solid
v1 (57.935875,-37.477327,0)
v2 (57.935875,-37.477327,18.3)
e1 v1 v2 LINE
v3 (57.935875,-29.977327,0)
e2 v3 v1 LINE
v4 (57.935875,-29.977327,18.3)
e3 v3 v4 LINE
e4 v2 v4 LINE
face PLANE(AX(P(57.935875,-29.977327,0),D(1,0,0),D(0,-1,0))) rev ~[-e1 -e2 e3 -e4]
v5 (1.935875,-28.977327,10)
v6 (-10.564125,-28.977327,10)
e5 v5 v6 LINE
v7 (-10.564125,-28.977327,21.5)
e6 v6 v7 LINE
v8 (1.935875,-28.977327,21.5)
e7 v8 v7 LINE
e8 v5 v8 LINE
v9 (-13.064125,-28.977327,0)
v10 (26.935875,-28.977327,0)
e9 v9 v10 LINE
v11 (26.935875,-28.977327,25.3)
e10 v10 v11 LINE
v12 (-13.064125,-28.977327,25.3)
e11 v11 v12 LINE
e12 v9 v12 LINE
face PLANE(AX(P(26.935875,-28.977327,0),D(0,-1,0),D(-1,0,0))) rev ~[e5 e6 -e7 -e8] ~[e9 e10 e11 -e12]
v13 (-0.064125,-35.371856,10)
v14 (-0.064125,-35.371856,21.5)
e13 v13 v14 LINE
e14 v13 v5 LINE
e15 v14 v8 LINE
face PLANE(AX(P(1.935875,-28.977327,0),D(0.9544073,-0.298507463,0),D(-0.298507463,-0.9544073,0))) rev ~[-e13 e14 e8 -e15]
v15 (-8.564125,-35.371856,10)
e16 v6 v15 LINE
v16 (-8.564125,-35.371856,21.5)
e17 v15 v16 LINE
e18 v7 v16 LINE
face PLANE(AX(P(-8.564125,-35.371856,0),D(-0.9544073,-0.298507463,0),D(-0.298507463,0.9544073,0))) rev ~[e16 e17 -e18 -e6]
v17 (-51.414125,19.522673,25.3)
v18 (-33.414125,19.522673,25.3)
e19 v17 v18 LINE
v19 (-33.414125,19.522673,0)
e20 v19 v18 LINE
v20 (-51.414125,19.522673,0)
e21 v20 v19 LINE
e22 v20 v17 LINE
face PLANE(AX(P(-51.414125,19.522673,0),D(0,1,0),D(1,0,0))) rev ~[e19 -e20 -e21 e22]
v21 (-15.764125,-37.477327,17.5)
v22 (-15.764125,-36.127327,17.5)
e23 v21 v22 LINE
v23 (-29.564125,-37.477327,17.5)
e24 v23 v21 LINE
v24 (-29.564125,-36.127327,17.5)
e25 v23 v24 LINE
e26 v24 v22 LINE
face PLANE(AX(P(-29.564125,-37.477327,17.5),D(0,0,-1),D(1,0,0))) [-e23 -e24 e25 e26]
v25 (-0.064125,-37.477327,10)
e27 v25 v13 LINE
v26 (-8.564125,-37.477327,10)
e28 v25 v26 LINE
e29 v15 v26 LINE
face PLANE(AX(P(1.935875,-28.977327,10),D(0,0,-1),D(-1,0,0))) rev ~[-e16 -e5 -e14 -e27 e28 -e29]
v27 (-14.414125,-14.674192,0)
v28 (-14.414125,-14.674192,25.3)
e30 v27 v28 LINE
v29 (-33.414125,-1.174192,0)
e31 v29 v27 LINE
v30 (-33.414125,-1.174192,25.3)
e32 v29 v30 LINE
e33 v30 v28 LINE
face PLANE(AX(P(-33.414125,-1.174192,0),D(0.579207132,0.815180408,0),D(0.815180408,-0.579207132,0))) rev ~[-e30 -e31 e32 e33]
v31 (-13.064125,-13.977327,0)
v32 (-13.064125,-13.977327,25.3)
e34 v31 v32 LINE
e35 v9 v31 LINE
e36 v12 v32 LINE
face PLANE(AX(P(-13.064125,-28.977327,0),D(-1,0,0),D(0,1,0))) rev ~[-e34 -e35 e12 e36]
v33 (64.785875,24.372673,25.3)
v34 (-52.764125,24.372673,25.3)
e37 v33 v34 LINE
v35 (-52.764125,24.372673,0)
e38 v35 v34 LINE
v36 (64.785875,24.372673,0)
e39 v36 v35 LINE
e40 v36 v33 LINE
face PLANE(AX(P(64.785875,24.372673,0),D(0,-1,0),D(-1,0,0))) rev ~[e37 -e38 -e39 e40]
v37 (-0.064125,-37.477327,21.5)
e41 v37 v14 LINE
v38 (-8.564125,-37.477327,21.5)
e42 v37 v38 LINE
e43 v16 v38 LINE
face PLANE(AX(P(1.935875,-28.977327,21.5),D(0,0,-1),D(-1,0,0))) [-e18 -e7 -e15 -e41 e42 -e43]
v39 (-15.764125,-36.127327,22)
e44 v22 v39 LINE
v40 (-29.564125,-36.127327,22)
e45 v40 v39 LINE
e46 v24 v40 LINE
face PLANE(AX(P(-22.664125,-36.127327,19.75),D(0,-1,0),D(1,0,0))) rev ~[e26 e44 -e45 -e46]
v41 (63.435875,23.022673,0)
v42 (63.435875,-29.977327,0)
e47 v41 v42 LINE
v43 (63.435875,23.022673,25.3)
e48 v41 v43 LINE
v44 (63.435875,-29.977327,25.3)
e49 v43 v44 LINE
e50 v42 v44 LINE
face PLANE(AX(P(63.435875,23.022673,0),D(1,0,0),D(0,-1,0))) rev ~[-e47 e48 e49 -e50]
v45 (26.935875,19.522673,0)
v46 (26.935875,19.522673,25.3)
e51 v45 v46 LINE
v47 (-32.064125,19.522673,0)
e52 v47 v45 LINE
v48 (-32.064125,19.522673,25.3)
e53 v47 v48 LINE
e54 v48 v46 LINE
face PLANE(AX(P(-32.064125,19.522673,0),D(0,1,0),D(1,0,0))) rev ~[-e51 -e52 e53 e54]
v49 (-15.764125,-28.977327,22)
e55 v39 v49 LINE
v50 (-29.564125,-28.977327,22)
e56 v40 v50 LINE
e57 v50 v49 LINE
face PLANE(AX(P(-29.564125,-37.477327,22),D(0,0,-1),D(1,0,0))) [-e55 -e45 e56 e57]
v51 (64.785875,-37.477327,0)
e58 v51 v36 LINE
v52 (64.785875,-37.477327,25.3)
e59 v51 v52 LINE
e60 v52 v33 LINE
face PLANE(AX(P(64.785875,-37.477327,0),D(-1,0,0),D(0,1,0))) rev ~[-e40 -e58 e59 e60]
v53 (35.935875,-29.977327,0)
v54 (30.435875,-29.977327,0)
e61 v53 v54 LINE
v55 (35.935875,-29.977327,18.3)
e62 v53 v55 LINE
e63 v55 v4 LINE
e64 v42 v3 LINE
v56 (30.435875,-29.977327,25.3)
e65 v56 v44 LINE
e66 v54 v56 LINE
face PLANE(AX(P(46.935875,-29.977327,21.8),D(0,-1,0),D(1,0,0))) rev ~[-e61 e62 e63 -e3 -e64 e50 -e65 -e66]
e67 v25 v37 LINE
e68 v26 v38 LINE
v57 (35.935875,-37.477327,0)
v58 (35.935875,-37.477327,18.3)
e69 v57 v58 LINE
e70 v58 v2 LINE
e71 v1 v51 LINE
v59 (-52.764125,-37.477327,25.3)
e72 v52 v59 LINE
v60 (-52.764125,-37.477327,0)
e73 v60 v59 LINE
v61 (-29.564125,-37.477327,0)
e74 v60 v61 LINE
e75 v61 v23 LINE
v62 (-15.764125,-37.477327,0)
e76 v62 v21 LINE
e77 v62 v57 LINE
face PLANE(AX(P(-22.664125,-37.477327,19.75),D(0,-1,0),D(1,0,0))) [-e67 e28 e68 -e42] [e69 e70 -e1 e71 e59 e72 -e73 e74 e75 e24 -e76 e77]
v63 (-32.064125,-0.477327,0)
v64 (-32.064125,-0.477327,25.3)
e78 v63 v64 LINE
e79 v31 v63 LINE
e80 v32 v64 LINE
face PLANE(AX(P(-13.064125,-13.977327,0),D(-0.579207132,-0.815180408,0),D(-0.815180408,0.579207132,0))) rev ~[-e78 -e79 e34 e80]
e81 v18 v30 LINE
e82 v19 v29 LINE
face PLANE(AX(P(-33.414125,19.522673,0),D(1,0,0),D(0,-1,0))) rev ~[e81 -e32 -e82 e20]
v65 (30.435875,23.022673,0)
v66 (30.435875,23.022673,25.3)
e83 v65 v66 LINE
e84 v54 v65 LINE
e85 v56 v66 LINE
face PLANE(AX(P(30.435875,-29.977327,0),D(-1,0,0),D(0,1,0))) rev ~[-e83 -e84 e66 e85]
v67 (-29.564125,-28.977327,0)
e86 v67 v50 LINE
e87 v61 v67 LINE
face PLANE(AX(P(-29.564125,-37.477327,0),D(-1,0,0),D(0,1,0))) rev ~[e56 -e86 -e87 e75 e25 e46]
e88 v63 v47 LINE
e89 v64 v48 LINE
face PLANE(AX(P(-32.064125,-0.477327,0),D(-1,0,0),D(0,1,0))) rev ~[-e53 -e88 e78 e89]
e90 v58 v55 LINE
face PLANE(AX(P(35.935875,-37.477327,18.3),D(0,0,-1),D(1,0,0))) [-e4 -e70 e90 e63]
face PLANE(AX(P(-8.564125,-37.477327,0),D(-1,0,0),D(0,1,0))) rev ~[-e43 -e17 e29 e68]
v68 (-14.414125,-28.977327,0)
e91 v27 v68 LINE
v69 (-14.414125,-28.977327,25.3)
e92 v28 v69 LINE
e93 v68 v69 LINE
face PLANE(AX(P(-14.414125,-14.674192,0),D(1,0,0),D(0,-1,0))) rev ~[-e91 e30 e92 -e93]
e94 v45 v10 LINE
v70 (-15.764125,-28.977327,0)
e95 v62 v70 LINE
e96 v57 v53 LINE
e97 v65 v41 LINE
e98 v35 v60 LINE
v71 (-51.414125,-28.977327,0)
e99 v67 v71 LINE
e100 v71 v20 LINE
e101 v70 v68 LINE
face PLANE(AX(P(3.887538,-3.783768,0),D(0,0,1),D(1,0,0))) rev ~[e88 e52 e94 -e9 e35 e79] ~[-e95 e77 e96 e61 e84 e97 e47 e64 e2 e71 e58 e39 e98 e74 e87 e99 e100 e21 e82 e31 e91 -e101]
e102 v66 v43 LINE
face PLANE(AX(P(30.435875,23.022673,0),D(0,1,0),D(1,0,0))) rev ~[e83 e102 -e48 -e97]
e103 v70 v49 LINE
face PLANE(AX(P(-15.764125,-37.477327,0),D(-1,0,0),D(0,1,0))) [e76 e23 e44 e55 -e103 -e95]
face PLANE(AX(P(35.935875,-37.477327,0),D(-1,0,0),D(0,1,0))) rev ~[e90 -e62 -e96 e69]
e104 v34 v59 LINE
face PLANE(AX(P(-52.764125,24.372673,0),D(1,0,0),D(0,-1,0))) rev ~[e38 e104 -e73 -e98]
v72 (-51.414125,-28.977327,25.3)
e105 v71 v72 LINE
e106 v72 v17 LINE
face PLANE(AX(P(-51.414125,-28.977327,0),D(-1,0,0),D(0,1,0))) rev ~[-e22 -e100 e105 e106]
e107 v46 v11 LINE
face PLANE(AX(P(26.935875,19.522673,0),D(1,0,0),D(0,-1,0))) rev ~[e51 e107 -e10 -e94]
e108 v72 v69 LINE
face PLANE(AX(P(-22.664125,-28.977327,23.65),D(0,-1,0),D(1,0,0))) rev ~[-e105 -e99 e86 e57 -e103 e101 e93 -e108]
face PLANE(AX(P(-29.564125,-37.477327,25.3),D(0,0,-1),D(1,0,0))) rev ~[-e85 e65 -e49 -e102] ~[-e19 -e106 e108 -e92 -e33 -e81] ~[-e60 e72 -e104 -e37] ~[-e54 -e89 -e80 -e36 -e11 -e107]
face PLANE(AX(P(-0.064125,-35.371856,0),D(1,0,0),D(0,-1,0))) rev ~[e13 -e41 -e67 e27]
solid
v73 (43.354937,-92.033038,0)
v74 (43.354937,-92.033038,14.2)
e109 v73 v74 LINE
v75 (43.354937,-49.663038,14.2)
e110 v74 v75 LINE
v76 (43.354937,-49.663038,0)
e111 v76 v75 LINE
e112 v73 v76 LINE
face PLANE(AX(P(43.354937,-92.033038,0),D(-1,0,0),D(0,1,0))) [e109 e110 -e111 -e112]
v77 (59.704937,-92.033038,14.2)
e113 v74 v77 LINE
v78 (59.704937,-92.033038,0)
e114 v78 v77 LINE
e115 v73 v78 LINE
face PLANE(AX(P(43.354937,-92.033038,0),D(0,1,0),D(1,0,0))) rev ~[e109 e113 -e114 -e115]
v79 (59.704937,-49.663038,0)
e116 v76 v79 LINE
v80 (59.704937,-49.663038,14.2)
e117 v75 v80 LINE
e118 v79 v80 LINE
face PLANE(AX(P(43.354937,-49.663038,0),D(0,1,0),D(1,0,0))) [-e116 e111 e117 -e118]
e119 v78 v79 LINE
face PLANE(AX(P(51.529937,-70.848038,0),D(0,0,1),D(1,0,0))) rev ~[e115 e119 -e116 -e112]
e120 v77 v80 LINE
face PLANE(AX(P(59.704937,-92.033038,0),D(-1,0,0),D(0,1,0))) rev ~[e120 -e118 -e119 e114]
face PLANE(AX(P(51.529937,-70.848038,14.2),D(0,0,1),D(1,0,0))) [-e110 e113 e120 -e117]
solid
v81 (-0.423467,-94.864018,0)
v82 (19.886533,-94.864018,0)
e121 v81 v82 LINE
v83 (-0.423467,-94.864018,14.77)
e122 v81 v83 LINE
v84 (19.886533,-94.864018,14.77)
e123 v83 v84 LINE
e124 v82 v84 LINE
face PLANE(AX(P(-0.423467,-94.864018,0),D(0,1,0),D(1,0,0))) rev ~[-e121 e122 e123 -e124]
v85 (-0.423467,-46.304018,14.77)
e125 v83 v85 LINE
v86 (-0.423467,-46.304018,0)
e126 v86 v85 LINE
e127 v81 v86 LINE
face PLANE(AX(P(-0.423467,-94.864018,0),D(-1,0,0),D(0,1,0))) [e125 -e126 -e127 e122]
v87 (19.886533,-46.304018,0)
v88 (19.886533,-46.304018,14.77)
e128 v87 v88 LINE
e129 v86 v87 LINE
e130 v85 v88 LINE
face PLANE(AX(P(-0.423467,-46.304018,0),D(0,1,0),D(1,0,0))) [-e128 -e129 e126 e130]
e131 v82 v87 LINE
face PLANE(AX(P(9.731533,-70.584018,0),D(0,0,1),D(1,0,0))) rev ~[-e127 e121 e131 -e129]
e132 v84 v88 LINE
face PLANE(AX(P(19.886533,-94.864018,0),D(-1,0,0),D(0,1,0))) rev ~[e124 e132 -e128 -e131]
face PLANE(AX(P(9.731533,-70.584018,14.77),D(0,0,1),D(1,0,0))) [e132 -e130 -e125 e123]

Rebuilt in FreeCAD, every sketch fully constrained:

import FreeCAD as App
import Part
import Sketcher
from FreeCAD import Vector
Q = App.Units.Quantity


def add_polygon(sketch, points):
    """Adds a closed chain of lines whose ends are joined by coincident constraints."""
    first, n = sketch.GeometryCount, len(points)
    for a, b in zip(points, points[1:] + points[:1]):
        sketch.addGeometry(Part.LineSegment(App.Vector(*a, 0), App.Vector(*b, 0)), False)
    for i in range(n):
        sketch.addConstraint(Sketcher.Constraint("Coincident", first + i, 2, first + (i + 1) % n, 1))

doc = App.newDocument("Part")
body = doc.addObject("PartDesign::Body", "Body")

sketch1 = doc.addObject("Sketcher::SketchObject", "Sketch")
body.addObject(sketch1)
sketch1.AttachmentSupport = (doc.XY_Plane, [""])
sketch1.MapMode = "FlatFace"
add_polygon(sketch1, [(30.4, -30), (30.4, 23), (63.4, 23), (63.4, -30), (57.9, -30), (57.9, -37.5), (64.8, -37.5), (64.8, 24.4), (-52.8, 24.4), (-52.8, -37.5), (-29.6, -37.5), (-29.6, -29), (-51.4, -29), (-51.4, 19.5), (-33.4, 19.5), (-33.4, -1.2), (-14.4, -14.7), (-14.4, -29), (-15.8, -29), (-15.8, -37.5), (-8.6, -37.5), (-8.6, -35.4), (-10.6, -29), (-13.1, -29), (-13.1, -14), (-32.1, -0.5), (-32.1, 19.5), (26.9, 19.5), (26.9, -29), (1.9, -29), (-0.1, -35.4), (-0.1, -37.5), (35.9, -37.5), (35.9, -30)])
sketch1.addConstraint(Sketcher.Constraint("Vertical", 0))
sketch1.addConstraint(Sketcher.Constraint("Horizontal", 1))
sketch1.addConstraint(Sketcher.Constraint("Vertical", 2))
sketch1.addConstraint(Sketcher.Constraint("Horizontal", 3))
sketch1.addConstraint(Sketcher.Constraint("Vertical", 4))
sketch1.addConstraint(Sketcher.Constraint("Horizontal", 5))
sketch1.addConstraint(Sketcher.Constraint("Vertical", 6))
sketch1.addConstraint(Sketcher.Constraint("Horizontal", 7))
sketch1.addConstraint(Sketcher.Constraint("Vertical", 8))
sketch1.addConstraint(Sketcher.Constraint("Horizontal", 9))
sketch1.addConstraint(Sketcher.Constraint("Vertical", 10))
sketch1.addConstraint(Sketcher.Constraint("Horizontal", 11))
sketch1.addConstraint(Sketcher.Constraint("Vertical", 12))
sketch1.addConstraint(Sketcher.Constraint("Horizontal", 13))
sketch1.addConstraint(Sketcher.Constraint("Vertical", 14))
sketch1.addConstraint(Sketcher.Constraint("Vertical", 16))
sketch1.addConstraint(Sketcher.Constraint("Horizontal", 17))
sketch1.addConstraint(Sketcher.Constraint("Vertical", 18))
sketch1.addConstraint(Sketcher.Constraint("Horizontal", 19))
sketch1.addConstraint(Sketcher.Constraint("Vertical", 20))
sketch1.addConstraint(Sketcher.Constraint("Horizontal", 22))
sketch1.addConstraint(Sketcher.Constraint("Vertical", 23))
sketch1.addConstraint(Sketcher.Constraint("Vertical", 25))
sketch1.addConstraint(Sketcher.Constraint("Horizontal", 26))
sketch1.addConstraint(Sketcher.Constraint("Vertical", 27))
sketch1.addConstraint(Sketcher.Constraint("Horizontal", 28))
sketch1.addConstraint(Sketcher.Constraint("Vertical", 30))
sketch1.addConstraint(Sketcher.Constraint("Horizontal", 31))
sketch1.addConstraint(Sketcher.Constraint("Vertical", 32))
sketch1.addConstraint(Sketcher.Constraint("Horizontal", 33))
sketch1.addConstraint(Sketcher.Constraint("Parallel", 15, 24))
sketch1.addConstraint(Sketcher.Constraint("Horizontal", 5, 2, 8, 2))
sketch1.addConstraint(Sketcher.Constraint("Horizontal", 11, 2, 16, 2))
sketch1.addConstraint(Sketcher.Constraint("Horizontal", 9, 2, 18, 2))
sketch1.addConstraint(Sketcher.Constraint("Horizontal", 17, 2, 21, 2))
sketch1.addConstraint(Sketcher.Constraint("Horizontal", 13, 2, 25, 2))
sketch1.addConstraint(Sketcher.Constraint("Horizontal", 22, 2, 27, 2))
sketch1.addConstraint(Sketcher.Constraint("Horizontal", 20, 2, 29, 2))
sketch1.addConstraint(Sketcher.Constraint("Horizontal", 19, 2, 30, 2))
sketch1.addConstraint(Sketcher.Constraint("Horizontal", 3, 2, 32, 2))
sketch1.addConstraint(Sketcher.Constraint("Equal", 3, 33))
sketch1.addConstraint(Sketcher.Constraint("Equal", 15, 24))
sketch1.addConstraint(Sketcher.Constraint("Equal", 21, 29))
sketch1.addConstraint(Sketcher.Constraint("DistanceX", 1, 1, 1, 2, Q("33 mm")))
sketch1.addConstraint(Sketcher.Constraint("DistanceX", 13, 1, 13, 2, Q("18 mm")))
sketch1.addConstraint(Sketcher.Constraint("DistanceX", 26, 1, 26, 2, Q("59 mm")))
sketch1.addConstraint(Sketcher.Constraint("DistanceX", 28, 2, 28, 1, Q("25 mm")))
sketch1.addConstraint(Sketcher.Constraint("DistanceX", 31, 1, 31, 2, Q("36 mm")))
sketch1.addConstraint(Sketcher.Constraint("DistanceY", 0, 1, 0, 2, Q("53 mm")))
sketch1.addConstraint(Sketcher.Constraint("DistanceY", 23, 1, 23, 2, Q("15 mm")))
sketch1.addConstraint(Sketcher.Constraint("DistanceY", 25, 1, 25, 2, Q("20 mm")))
sketch1.addConstraint(Sketcher.Constraint("DistanceX", 3, 2, 3, 1, Q("5.5 mm")))
sketch1.addConstraint(Sketcher.Constraint("DistanceX", 9, 1, 9, 2, Q("23.2 mm")))
sketch1.addConstraint(Sketcher.Constraint("DistanceX", 19, 1, 19, 2, Q("7.2 mm")))
sketch1.addConstraint(Sketcher.Constraint("DistanceX", 22, 2, 22, 1, Q("2.5 mm")))
sketch1.addConstraint(Sketcher.Constraint("DistanceY", 4, 2, 4, 1, Q("7.5 mm")))
sketch1.addConstraint(Sketcher.Constraint("DistanceY", 10, 1, 10, 2, Q("8.5 mm")))
sketch1.addConstraint(Sketcher.Constraint("DistanceY", 12, 1, 12, 2, Q("48.5 mm")))
sketch1.addConstraint(Sketcher.Constraint("DistanceX", 9, 2, 0, 2, Q("60 mm")))
sketch1.addConstraint(Sketcher.Constraint("DistanceX", 14, 2, 15, 2, Q("19 mm")))
sketch1.addConstraint(Sketcher.Constraint("DistanceX", 9, 2, 19, 2, Q("21 mm")))
sketch1.addConstraint(Sketcher.Constraint("Distance", 21, Q("6.7 mm")))
sketch1.addConstraint(Sketcher.Constraint("DistanceX", 5, 1, 5, 2, Q("6.85 mm")))
sketch1.addConstraint(Sketcher.Constraint("DistanceX", 11, 2, 11, 1, Q("21.85 mm")))
sketch1.addConstraint(Sketcher.Constraint("DistanceY", 6, 1, 6, 2, Q("61.85 mm")))
sketch1.addConstraint(Sketcher.Constraint("DistanceY", 14, 2, 14, 1, Q("20.696865 mm")))
sketch1.addConstraint(Sketcher.Constraint("DistanceY", 14, 2, -1, 1, Q("1.174192 mm")))
sketch1.addConstraint(Sketcher.Constraint("DistanceX", -1, 1, 0, 2, Q("30.435875 mm")))
pad1 = doc.addObject("PartDesign::Pad", "Pad")
body.addObject(pad1)
pad1.Profile = sketch1
pad1.Length = 25.3

sketch2 = doc.addObject("Sketcher::SketchObject", "Sketch001")
body.addObject(sketch2)
sketch2.AttachmentSupport = (doc.XZ_Plane, [""])
sketch2.MapMode = "FlatFace"
sketch2.AttachmentOffset = App.Placement(Vector(0, 0, 37.477327), App.Rotation())
add_polygon(sketch2, [(36, 25), (36, 18), (58, 18), (58, 25)])
sketch2.addConstraint(Sketcher.Constraint("Vertical", 0))
sketch2.addConstraint(Sketcher.Constraint("Horizontal", 1))
sketch2.addConstraint(Sketcher.Constraint("Vertical", 2))
sketch2.addConstraint(Sketcher.Constraint("Horizontal", 3))
sketch2.addConstraint(Sketcher.Constraint("DistanceX", 1, 1, 1, 2, Q("22 mm")))
sketch2.addConstraint(Sketcher.Constraint("DistanceY", 0, 2, 0, 1, Q("7 mm")))
sketch2.addConstraint(Sketcher.Constraint("DistanceY", -1, 1, 0, 2, Q("18.3 mm")))
sketch2.addConstraint(Sketcher.Constraint("DistanceX", -1, 1, 0, 2, Q("35.935875 mm")))
pad2 = doc.addObject("PartDesign::Pad", "Pad001")
body.addObject(pad2)
pad2.Profile = sketch2
pad2.Length = 7.5
pad2.Reversed = True

sketch3 = doc.addObject("Sketcher::SketchObject", "Sketch002")
body.addObject(sketch3)
sketch3.AttachmentSupport = (doc.XZ_Plane, [""])
sketch3.MapMode = "FlatFace"
sketch3.AttachmentOffset = App.Placement(Vector(0, 0, 28.977327), App.Rotation())
add_polygon(sketch3, [(1.9, 25.3), (1.9, 21.5), (-10.6, 21.5), (-10.6, 25.3)])
add_polygon(sketch3, [(1.9, 10), (1.9, 0), (-10.6, 0), (-10.6, 10)])
sketch3.addConstraint(Sketcher.Constraint("Vertical", 0))
sketch3.addConstraint(Sketcher.Constraint("Horizontal", 1))
sketch3.addConstraint(Sketcher.Constraint("Vertical", 2))
sketch3.addConstraint(Sketcher.Constraint("Horizontal", 3))
sketch3.addConstraint(Sketcher.Constraint("Vertical", 4))
sketch3.addConstraint(Sketcher.Constraint("Horizontal", 5))
sketch3.addConstraint(Sketcher.Constraint("Vertical", 6))
sketch3.addConstraint(Sketcher.Constraint("Horizontal", 7))
sketch3.addConstraint(Sketcher.Constraint("PointOnObject", 4, 2, -1))
sketch3.addConstraint(Sketcher.Constraint("Vertical", 3, 2, 4, 2))
sketch3.addConstraint(Sketcher.Constraint("Vertical", 2, 2, 5, 2))
sketch3.addConstraint(Sketcher.Constraint("DistanceY", 4, 2, 4, 1, Q("10 mm")))
sketch3.addConstraint(Sketcher.Constraint("DistanceX", 1, 2, 1, 1, Q("12.5 mm")))
sketch3.addConstraint(Sketcher.Constraint("DistanceY", 0, 2, 0, 1, Q("3.8 mm")))
sketch3.addConstraint(Sketcher.Constraint("DistanceY", -1, 1, 0, 2, Q("21.5 mm")))
sketch3.addConstraint(Sketcher.Constraint("DistanceX", -1, 1, 0, 2, Q("1.935875 mm")))
pad3 = doc.addObject("PartDesign::Pad", "Pad002")
body.addObject(pad3)
pad3.Profile = sketch3
pad3.Length = 8.5

sketch4 = doc.addObject("Sketcher::SketchObject", "Sketch003")
body.addObject(sketch4)
sketch4.AttachmentSupport = (doc.XZ_Plane, [""])
sketch4.MapMode = "FlatFace"
sketch4.AttachmentOffset = App.Placement(Vector(0, 0, 37.477327), App.Rotation())
add_polygon(sketch4, [(-29.6, 25.3), (-29.6, 22), (-15.8, 22), (-15.8, 25.3)])
sketch4.addConstraint(Sketcher.Constraint("Vertical", 0))
sketch4.addConstraint(Sketcher.Constraint("Horizontal", 1))
sketch4.addConstraint(Sketcher.Constraint("Vertical", 2))
sketch4.addConstraint(Sketcher.Constraint("Horizontal", 3))
sketch4.addConstraint(Sketcher.Constraint("DistanceX", 1, 1, 1, 2, Q("13.8 mm")))
sketch4.addConstraint(Sketcher.Constraint("DistanceY", 0, 2, 0, 1, Q("3.3 mm")))
sketch4.addConstraint(Sketcher.Constraint("DistanceY", -1, 1, 0, 2, Q("22 mm")))
sketch4.addConstraint(Sketcher.Constraint("DistanceX", 0, 2, -1, 1, Q("29.564125 mm")))
pad4 = doc.addObject("PartDesign::Pad", "Pad003")
body.addObject(pad4)
pad4.Profile = sketch4
pad4.Length = 8.5
pad4.Reversed = True

sketch5 = doc.addObject("Sketcher::SketchObject", "Sketch004")
body.addObject(sketch5)
sketch5.AttachmentSupport = (doc.XZ_Plane, [""])
sketch5.MapMode = "FlatFace"
sketch5.AttachmentOffset = App.Placement(Vector(0, 0, 37.477327), App.Rotation())
add_polygon(sketch5, [(-29.6, 22), (-29.6, 17.5), (-15.8, 17.5), (-15.8, 22)])
sketch5.addConstraint(Sketcher.Constraint("Vertical", 0))
sketch5.addConstraint(Sketcher.Constraint("Horizontal", 1))
sketch5.addConstraint(Sketcher.Constraint("Vertical", 2))
sketch5.addConstraint(Sketcher.Constraint("Horizontal", 3))
sketch5.addConstraint(Sketcher.Constraint("DistanceX", 1, 1, 1, 2, Q("13.8 mm")))
sketch5.addConstraint(Sketcher.Constraint("DistanceY", 0, 2, 0, 1, Q("4.5 mm")))
sketch5.addConstraint(Sketcher.Constraint("DistanceY", -1, 1, 2, 2, Q("22 mm")))
sketch5.addConstraint(Sketcher.Constraint("DistanceX", 0, 2, -1, 1, Q("29.564125 mm")))
pad5 = doc.addObject("PartDesign::Pad", "Pad004")
body.addObject(pad5)
pad5.Profile = sketch5
pad5.Length = 1.35
pad5.Reversed = True
body2 = doc.addObject("PartDesign::Body", "Body001")

sketch6 = doc.addObject("Sketcher::SketchObject", "Sketch005")
body2.addObject(sketch6)
sketch6.AttachmentSupport = (doc.getObject("XY_Plane001"), [""])
sketch6.MapMode = "FlatFace"
add_polygon(sketch6, [(0, -46), (0, -95), (20, -95), (20, -46)])
sketch6.addConstraint(Sketcher.Constraint("Vertical", 0))
sketch6.addConstraint(Sketcher.Constraint("Horizontal", 1))
sketch6.addConstraint(Sketcher.Constraint("Vertical", 2))
sketch6.addConstraint(Sketcher.Constraint("Horizontal", 3))
sketch6.addConstraint(Sketcher.Constraint("DistanceX", 1, 1, 1, 2, Q("20.31 mm")))
sketch6.addConstraint(Sketcher.Constraint("DistanceY", 0, 2, 0, 1, Q("48.56 mm")))
sketch6.addConstraint(Sketcher.Constraint("DistanceY", 0, 2, -1, 1, Q("94.864018 mm")))
sketch6.addConstraint(Sketcher.Constraint("DistanceX", 0, 2, -1, 1, Q("0.423467 mm")))
pad6 = doc.addObject("PartDesign::Pad", "Pad005")
body2.addObject(pad6)
pad6.Profile = sketch6
pad6.Length = 14.77
body3 = doc.addObject("PartDesign::Body", "Body002")

sketch7 = doc.addObject("Sketcher::SketchObject", "Sketch006")
body3.addObject(sketch7)
sketch7.AttachmentSupport = (doc.getObject("XY_Plane002"), [""])
sketch7.MapMode = "FlatFace"
add_polygon(sketch7, [(43, -50), (43, -92), (60, -92), (60, -50)])
sketch7.addConstraint(Sketcher.Constraint("Vertical", 0))
sketch7.addConstraint(Sketcher.Constraint("Horizontal", 1))
sketch7.addConstraint(Sketcher.Constraint("Vertical", 2))
sketch7.addConstraint(Sketcher.Constraint("Horizontal", 3))
sketch7.addConstraint(Sketcher.Constraint("DistanceX", 1, 1, 1, 2, Q("16.35 mm")))
sketch7.addConstraint(Sketcher.Constraint("DistanceY", 0, 2, 0, 1, Q("42.37 mm")))
sketch7.addConstraint(Sketcher.Constraint("DistanceY", 0, 2, -1, 1, Q("92.033038 mm")))
sketch7.addConstraint(Sketcher.Constraint("DistanceX", -1, 1, 0, 2, Q("43.354937 mm")))
pad7 = doc.addObject("PartDesign::Pad", "Pad006")
body3.addObject(pad7)
pad7.Profile = sketch7
pad7.Length = 14.2

doc.recompute()
